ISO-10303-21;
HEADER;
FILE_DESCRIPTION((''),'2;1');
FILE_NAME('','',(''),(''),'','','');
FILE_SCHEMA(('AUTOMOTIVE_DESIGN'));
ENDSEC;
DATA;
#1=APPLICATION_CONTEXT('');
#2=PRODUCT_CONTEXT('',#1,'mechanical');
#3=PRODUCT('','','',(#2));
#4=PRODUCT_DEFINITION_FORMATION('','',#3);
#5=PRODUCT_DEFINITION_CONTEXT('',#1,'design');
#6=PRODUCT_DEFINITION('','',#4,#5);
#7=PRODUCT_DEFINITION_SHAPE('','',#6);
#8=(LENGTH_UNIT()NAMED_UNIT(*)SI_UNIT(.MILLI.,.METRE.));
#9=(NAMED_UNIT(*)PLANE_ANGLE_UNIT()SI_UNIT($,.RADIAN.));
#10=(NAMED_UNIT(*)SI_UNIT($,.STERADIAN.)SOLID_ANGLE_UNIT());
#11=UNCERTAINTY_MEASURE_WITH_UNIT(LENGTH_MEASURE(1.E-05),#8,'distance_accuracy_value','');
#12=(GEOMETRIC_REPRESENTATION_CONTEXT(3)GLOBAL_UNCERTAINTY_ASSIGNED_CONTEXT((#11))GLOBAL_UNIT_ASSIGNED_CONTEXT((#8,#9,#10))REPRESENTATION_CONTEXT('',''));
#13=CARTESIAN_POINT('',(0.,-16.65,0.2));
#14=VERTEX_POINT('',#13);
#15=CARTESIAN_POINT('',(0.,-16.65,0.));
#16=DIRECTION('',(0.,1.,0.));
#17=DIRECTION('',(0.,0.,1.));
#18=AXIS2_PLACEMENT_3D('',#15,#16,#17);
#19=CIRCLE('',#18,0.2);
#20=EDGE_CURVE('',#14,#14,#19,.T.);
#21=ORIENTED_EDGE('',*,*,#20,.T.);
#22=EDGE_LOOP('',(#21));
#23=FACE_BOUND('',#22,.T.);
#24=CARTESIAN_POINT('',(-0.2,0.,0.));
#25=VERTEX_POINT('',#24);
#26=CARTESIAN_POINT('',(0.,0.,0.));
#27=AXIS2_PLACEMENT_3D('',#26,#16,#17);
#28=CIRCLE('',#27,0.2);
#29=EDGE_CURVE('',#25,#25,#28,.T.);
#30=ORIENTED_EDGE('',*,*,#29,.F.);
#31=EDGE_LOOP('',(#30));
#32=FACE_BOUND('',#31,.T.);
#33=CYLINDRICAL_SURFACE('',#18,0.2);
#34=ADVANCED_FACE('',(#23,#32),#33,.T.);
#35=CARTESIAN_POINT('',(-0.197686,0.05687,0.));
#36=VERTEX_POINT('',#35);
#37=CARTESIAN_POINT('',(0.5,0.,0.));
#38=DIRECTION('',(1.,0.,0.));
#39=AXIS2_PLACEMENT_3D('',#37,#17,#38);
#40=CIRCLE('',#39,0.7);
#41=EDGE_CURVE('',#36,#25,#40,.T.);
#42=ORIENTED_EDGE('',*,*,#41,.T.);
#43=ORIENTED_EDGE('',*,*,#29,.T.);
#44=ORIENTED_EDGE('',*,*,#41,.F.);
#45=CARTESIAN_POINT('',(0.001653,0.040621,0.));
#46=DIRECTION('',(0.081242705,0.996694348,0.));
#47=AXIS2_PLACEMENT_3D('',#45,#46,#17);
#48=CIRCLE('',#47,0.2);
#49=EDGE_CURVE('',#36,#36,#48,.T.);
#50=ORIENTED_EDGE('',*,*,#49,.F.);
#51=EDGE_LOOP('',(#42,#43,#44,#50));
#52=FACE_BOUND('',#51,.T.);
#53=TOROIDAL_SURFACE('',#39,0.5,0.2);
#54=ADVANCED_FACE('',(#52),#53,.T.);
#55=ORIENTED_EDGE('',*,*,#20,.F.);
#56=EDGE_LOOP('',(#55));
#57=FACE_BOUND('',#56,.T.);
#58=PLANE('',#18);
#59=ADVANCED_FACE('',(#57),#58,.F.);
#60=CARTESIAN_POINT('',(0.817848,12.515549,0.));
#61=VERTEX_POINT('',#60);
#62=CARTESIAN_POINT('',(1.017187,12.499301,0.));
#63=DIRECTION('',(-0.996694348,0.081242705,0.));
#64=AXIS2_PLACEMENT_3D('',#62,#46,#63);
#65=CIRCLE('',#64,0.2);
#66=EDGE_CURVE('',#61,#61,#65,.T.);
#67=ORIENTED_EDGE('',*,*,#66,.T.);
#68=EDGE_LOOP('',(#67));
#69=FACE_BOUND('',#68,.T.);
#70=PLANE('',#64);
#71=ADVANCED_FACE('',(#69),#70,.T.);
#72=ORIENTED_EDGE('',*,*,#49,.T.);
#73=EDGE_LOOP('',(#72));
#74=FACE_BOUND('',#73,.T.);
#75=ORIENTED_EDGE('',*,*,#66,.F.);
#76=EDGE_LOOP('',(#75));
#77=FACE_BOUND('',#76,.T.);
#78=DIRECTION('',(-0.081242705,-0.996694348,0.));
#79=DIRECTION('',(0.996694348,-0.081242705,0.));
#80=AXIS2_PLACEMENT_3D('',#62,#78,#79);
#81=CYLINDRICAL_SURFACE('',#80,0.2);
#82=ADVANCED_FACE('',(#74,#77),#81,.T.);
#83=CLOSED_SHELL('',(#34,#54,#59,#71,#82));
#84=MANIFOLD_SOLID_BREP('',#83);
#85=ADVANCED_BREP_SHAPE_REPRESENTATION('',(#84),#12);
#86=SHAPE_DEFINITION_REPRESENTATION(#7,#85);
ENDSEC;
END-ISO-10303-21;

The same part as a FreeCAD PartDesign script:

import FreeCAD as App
import Part
import Sketcher

V = App.Vector

doc = App.newDocument("Part")
body = doc.addObject("PartDesign::Body", "Body")

# Sketch on XZ plane
sketch1 = body.newObject("Sketcher::SketchObject", "Sketch")
sketch1.AttachmentSupport = (doc.getObject("XZ_Plane"), [""])
sketch1.MapMode = "FlatFace"
sketch1.addGeometry(Part.Circle(V(0, 0, 0), V(0, 0, 1), 0.2), False)
sketch1.addConstraint(Sketcher.Constraint("Coincident", 0, 3, -1, 1))
sketch1.addConstraint(Sketcher.Constraint("Diameter", 0, 0.4))
pad1 = body.newObject("PartDesign::Pad", "Pad")
pad1.Profile = sketch1
pad1.Length = 16.65

# Sketch on XZ plane
sketch2 = body.newObject("Sketcher::SketchObject", "Sketch001")
sketch2.AttachmentSupport = (doc.getObject("XZ_Plane"), [""])
sketch2.MapMode = "FlatFace"
sketch2.addGeometry(Part.Circle(V(0, 0, 0), V(0, 0, 1), 0.2), False)
sketch2.addGeometry(Part.LineSegment(V(0.5, 0, 0), V(0.5, -10, 0)), True)  # axis
sketch2.addConstraint(Sketcher.Constraint("Vertical", 1))
sketch2.addConstraint(Sketcher.Constraint("Coincident", 0, 3, -1, 1))
sketch2.addConstraint(Sketcher.Constraint("PointOnObject", 1, 1, -1))
sketch2.addConstraint(Sketcher.Constraint("Diameter", 0, 0.4))
sketch2.addConstraint(Sketcher.Constraint("DistanceY", 1, 2, 1, 1, 10.0))
sketch2.addConstraint(Sketcher.Constraint("DistanceX", -1, 1, 1, 1, 0.5))
revolution = body.newObject("PartDesign::Revolution", "Revolution")
revolution.Profile = sketch2
revolution.ReferenceAxis = (sketch2, ["Axis0"])
revolution.Angle = 4.66

# Sketch on an angled plane
sketch3 = body.newObject("Sketcher::SketchObject", "Sketch002")
sketch3.Placement = App.Placement(V(0.0033, 0.040487, 0), App.Rotation(V(0.996694348, -0.081242705, 0), V(0, 0, -1), V(0.081242705, 0.996694348, 0), "ZXY"))
sketch3.addGeometry(Part.Circle(V(0, 0, 0), V(0, 0, 1), 0.2), False)
sketch3.addConstraint(Sketcher.Constraint("PointOnObject", 0, 3, -1))
sketch3.addConstraint(Sketcher.Constraint("Diameter", 0, 0.4))
sketch3.addConstraint(Sketcher.Constraint("DistanceX", 0, 3, -1, 1, 0.001653))
pad2 = body.newObject("PartDesign::Pad", "Pad001")
pad2.Profile = sketch3
pad2.Length = 12.5

doc.recompute()
